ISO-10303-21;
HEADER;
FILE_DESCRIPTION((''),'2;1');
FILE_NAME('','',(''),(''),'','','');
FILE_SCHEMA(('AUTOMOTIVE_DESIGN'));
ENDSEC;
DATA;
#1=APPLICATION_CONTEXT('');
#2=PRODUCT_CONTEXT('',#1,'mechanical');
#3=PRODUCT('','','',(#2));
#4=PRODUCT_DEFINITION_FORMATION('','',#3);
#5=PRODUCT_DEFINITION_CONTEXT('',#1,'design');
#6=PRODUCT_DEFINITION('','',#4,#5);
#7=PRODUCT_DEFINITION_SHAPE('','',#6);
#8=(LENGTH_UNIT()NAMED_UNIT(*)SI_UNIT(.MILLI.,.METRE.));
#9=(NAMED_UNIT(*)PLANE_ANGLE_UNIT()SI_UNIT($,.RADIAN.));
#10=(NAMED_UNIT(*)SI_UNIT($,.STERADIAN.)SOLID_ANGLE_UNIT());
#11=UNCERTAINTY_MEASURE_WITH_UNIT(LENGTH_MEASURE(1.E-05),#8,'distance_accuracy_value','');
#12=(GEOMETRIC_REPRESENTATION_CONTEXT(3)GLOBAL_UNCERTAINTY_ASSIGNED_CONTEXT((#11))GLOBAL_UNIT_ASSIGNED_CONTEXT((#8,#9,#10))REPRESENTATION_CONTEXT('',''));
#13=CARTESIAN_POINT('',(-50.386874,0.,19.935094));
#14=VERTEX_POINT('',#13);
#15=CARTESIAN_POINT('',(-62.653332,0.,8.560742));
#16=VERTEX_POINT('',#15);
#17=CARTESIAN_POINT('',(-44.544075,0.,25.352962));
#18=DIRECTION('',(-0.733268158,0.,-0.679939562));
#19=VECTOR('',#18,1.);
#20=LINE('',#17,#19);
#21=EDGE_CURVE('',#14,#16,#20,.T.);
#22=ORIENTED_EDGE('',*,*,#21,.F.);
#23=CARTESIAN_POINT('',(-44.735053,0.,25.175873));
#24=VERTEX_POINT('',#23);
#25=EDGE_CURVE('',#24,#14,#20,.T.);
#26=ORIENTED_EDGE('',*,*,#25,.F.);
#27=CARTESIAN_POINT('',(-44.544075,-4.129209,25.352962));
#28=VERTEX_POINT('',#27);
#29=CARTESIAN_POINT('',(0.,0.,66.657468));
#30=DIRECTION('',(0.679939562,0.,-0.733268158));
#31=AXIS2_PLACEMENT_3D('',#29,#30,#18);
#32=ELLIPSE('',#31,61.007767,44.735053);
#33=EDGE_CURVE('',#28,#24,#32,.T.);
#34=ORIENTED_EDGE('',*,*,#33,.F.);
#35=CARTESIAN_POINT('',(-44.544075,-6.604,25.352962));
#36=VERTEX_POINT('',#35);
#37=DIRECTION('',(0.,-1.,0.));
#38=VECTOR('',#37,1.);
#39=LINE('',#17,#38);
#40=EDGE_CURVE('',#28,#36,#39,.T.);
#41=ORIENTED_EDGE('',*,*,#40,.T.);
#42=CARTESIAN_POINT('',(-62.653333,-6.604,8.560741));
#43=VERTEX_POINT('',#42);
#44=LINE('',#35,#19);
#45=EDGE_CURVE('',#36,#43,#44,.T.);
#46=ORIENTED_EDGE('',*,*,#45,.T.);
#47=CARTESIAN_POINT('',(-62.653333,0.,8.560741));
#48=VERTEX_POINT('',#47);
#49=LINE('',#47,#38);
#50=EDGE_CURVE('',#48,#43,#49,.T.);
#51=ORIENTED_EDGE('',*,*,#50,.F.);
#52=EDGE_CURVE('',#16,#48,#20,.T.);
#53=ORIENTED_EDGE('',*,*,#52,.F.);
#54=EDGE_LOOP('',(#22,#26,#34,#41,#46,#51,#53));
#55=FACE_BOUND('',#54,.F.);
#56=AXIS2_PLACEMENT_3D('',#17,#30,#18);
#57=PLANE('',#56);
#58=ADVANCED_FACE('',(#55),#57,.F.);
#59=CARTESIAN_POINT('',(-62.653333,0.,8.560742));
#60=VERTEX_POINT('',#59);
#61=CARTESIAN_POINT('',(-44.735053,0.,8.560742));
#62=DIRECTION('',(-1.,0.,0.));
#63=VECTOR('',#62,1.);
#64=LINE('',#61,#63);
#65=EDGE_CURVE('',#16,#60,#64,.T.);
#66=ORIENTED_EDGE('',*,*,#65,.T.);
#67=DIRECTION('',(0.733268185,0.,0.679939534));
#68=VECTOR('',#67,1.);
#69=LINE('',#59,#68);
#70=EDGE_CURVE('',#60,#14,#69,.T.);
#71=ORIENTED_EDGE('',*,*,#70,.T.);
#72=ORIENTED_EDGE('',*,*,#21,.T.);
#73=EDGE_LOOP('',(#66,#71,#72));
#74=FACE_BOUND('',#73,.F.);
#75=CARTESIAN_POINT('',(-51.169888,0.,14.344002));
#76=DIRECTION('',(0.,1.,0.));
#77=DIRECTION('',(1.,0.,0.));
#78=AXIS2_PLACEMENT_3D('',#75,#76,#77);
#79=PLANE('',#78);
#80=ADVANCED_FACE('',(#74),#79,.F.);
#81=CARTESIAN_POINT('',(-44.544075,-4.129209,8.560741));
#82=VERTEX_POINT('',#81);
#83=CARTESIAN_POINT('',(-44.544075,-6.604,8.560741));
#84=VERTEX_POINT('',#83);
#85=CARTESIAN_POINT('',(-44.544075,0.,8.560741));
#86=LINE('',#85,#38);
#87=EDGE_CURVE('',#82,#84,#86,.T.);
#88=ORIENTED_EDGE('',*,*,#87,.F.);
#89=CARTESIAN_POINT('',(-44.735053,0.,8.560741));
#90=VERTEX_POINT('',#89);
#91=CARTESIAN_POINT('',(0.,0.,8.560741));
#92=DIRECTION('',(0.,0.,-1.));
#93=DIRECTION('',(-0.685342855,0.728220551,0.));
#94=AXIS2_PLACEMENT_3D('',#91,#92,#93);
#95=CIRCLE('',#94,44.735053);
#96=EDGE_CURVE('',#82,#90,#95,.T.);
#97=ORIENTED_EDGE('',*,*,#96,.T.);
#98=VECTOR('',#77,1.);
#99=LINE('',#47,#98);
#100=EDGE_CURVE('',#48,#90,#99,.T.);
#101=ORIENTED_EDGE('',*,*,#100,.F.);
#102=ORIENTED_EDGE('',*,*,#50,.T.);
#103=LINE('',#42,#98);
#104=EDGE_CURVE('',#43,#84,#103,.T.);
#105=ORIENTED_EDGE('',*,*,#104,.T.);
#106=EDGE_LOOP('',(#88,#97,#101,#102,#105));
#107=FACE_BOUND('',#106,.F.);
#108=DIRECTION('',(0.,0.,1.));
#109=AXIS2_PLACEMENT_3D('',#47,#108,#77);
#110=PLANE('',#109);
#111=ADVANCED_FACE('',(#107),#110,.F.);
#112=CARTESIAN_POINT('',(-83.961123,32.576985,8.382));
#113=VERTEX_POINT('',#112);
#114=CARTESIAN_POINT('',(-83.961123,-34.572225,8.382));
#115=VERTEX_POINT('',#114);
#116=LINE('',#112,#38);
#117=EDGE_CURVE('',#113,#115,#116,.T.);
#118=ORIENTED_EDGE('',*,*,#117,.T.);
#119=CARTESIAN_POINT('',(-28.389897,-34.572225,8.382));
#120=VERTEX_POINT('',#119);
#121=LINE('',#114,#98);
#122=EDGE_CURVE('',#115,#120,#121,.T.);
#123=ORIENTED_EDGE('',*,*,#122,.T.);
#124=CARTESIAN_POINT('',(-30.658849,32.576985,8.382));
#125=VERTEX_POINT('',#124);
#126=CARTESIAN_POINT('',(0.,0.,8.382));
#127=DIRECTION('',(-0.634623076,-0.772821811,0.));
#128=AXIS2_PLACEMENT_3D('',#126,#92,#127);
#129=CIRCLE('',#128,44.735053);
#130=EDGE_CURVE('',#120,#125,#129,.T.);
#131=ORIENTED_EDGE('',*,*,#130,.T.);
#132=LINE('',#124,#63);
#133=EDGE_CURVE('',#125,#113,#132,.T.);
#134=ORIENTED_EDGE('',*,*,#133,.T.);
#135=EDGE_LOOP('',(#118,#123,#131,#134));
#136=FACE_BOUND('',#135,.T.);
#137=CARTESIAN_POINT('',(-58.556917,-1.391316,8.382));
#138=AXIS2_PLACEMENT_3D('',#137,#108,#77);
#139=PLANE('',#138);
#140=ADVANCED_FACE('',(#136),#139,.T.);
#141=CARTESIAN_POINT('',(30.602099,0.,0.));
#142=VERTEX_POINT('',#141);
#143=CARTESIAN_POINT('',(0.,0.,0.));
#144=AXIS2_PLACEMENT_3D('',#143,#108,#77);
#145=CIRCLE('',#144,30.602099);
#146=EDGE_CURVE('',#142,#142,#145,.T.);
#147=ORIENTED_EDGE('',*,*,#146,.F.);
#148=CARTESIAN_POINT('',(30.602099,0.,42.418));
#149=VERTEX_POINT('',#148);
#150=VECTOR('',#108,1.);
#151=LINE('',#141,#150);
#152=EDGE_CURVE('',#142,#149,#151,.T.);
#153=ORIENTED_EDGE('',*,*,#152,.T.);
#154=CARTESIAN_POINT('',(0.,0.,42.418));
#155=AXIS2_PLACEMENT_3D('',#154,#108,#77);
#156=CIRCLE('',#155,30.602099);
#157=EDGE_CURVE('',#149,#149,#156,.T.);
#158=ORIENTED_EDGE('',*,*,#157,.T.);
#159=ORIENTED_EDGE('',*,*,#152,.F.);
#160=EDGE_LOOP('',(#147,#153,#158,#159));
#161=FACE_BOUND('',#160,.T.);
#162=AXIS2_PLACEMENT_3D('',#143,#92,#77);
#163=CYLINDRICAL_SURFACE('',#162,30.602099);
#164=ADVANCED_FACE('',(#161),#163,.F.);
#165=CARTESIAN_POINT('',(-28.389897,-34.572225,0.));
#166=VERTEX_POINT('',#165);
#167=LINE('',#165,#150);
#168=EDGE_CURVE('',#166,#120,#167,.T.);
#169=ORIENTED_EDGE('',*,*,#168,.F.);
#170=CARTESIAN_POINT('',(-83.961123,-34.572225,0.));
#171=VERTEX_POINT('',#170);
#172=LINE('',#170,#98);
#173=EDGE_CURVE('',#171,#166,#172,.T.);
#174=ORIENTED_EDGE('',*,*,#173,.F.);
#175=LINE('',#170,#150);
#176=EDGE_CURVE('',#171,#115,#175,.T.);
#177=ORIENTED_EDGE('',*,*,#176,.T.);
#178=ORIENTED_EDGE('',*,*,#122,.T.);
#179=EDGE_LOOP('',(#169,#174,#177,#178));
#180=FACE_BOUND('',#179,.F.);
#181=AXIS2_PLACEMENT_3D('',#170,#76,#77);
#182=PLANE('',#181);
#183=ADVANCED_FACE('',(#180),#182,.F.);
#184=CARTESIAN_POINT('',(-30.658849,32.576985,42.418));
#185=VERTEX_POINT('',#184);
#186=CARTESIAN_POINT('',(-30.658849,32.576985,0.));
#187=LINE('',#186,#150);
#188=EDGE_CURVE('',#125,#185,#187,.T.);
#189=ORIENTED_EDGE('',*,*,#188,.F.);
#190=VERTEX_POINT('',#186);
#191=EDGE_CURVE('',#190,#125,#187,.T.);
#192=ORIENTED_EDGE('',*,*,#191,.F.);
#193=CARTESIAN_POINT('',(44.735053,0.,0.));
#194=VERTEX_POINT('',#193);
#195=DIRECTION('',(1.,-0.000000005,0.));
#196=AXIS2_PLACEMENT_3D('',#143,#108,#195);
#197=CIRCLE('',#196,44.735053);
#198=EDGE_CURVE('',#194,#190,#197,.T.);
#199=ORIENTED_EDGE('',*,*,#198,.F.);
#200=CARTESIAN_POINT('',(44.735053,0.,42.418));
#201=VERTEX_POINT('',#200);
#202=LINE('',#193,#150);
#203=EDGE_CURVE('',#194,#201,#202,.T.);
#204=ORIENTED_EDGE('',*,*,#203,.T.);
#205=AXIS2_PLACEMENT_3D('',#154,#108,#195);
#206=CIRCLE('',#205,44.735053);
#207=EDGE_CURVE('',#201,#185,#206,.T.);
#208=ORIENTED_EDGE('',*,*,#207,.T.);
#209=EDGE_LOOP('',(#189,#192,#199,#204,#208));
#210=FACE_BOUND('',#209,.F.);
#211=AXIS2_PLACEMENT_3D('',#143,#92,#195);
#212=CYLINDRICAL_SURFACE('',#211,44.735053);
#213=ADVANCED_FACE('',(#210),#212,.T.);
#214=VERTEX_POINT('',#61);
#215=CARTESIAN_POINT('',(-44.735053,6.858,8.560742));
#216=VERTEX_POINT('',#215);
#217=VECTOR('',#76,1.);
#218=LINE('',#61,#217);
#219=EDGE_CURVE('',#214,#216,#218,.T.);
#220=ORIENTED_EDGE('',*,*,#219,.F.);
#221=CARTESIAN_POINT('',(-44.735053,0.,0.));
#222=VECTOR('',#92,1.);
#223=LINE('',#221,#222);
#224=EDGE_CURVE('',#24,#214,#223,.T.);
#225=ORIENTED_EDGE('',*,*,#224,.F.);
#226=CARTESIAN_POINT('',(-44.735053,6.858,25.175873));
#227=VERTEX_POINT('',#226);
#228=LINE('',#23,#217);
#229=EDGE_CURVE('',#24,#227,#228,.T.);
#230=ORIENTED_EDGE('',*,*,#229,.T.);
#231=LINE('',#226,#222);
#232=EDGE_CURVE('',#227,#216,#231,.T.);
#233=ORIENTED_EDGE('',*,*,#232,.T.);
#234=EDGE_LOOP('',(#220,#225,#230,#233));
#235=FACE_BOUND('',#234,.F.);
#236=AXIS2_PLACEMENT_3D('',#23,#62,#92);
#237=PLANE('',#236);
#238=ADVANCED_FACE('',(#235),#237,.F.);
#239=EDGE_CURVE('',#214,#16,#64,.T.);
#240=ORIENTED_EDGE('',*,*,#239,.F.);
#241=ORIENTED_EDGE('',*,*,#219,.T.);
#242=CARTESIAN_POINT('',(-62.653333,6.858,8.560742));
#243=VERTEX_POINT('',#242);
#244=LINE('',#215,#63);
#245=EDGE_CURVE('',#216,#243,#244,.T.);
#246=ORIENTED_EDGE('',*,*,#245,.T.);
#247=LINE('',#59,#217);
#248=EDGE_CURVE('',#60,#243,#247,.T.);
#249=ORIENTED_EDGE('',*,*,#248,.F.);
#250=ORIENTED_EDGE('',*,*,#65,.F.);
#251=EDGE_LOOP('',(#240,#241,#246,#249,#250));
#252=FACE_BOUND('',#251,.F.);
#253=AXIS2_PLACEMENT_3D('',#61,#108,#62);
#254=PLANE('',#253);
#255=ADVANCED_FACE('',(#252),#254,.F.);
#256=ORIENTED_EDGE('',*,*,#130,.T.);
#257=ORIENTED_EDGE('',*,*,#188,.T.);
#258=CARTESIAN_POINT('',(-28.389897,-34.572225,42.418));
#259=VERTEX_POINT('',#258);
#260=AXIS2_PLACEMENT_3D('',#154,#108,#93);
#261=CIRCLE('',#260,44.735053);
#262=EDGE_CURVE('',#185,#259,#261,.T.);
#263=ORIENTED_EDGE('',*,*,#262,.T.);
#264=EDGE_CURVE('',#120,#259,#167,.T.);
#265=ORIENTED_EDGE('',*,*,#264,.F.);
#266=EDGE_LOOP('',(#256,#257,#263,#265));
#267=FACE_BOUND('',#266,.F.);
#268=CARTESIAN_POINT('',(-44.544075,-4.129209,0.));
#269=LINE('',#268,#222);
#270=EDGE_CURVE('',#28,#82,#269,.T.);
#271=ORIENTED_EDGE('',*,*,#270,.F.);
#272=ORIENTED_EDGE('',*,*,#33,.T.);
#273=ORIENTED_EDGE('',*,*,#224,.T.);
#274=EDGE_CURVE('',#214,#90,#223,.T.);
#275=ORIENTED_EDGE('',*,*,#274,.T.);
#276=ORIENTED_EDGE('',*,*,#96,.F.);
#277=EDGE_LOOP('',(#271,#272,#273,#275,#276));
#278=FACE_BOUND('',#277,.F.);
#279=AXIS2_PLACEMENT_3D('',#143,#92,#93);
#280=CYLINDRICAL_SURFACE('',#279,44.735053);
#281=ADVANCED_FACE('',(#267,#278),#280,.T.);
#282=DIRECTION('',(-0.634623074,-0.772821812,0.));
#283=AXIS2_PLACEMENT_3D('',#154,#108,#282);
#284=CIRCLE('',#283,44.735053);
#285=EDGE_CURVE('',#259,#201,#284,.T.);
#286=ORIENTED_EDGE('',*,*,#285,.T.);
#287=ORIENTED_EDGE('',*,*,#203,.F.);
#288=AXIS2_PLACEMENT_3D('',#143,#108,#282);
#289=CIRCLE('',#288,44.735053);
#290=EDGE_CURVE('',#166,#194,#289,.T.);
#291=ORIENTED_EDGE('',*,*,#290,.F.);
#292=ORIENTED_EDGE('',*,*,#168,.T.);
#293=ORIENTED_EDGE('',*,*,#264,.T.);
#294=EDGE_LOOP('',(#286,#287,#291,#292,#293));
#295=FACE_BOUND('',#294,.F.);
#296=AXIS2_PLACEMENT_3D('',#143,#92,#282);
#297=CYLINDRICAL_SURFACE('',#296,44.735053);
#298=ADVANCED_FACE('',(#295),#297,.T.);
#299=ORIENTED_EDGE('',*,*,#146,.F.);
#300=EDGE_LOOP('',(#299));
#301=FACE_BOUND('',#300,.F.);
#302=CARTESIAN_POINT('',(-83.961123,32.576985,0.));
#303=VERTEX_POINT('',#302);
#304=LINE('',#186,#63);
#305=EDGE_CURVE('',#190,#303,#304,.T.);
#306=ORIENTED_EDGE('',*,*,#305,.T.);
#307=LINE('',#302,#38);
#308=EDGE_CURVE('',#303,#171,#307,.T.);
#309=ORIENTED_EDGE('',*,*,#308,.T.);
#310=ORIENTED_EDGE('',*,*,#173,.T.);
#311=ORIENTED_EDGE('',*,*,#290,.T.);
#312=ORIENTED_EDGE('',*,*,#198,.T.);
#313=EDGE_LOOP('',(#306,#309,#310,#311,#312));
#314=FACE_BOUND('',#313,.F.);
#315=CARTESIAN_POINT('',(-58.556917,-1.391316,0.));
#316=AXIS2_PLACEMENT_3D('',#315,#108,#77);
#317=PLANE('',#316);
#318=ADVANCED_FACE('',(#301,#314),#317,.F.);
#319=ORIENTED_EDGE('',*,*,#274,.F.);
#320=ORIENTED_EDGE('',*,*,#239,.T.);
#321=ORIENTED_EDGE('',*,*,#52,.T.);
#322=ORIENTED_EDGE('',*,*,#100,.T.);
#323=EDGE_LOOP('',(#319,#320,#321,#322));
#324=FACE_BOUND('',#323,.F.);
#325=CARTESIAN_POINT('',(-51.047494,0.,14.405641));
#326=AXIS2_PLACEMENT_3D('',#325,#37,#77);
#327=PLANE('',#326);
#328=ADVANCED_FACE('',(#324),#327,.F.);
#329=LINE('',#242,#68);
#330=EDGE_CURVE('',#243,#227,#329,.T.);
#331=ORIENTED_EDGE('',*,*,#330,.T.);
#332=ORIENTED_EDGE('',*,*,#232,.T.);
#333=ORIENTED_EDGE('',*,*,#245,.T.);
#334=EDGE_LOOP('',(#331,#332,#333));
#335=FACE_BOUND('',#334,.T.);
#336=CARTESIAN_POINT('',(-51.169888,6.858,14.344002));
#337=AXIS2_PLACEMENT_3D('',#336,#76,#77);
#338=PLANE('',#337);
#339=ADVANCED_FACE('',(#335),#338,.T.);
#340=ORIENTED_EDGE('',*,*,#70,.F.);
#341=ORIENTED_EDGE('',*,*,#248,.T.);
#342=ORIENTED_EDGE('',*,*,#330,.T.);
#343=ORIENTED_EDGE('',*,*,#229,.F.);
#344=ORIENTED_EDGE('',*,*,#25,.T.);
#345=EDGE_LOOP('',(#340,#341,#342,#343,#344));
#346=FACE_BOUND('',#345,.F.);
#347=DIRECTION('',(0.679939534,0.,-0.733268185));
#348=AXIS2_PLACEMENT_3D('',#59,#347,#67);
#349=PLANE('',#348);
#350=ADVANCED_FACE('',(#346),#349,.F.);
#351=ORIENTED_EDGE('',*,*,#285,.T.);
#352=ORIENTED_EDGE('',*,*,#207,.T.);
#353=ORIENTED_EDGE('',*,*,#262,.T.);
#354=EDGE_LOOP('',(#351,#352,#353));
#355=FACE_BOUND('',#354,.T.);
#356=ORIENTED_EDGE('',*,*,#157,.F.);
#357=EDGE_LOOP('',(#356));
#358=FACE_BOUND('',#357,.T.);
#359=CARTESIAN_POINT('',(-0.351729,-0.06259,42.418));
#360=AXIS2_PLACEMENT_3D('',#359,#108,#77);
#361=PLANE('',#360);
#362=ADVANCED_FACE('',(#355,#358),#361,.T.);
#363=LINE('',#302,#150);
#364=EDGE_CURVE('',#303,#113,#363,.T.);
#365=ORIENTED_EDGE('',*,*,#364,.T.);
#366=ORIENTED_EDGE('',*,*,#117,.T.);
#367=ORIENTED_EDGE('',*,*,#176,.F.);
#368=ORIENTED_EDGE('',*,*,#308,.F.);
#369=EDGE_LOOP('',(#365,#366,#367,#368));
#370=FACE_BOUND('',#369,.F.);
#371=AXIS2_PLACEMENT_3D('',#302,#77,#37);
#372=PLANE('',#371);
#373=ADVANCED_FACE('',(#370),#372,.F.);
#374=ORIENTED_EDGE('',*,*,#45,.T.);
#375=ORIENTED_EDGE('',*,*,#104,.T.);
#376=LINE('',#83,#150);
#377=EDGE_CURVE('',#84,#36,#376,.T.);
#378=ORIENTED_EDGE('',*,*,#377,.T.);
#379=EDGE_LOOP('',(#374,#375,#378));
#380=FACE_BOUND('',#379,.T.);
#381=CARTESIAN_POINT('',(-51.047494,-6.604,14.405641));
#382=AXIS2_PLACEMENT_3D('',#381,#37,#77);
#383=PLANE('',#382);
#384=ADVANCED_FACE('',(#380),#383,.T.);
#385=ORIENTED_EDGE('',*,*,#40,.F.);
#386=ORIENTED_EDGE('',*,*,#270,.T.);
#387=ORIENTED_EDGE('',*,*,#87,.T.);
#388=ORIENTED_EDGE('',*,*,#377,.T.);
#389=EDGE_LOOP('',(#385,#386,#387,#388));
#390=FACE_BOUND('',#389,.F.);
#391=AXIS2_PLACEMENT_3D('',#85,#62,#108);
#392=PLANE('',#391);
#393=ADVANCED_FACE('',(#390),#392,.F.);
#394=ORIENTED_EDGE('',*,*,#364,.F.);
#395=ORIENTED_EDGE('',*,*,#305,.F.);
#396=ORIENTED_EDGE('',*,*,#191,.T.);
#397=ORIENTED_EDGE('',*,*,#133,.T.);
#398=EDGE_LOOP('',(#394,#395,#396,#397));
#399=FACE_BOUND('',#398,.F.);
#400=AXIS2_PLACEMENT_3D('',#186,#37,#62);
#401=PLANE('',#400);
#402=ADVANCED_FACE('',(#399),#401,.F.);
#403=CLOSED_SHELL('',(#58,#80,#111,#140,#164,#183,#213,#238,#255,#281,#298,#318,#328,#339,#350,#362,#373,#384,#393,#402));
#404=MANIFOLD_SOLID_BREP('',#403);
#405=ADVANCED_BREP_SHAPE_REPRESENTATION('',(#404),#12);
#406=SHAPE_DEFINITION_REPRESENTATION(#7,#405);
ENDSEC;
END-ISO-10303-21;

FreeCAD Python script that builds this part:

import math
import FreeCAD as App
import Part
import Sketcher
Q = App.Units.Quantity

doc = App.newDocument("Part")
body = doc.addObject("PartDesign::Body", "Body")

# Sketch on XY plane
sketch1 = doc.addObject("Sketcher::SketchObject", "Sketch")
body.addObject(sketch1)
sketch1.AttachmentSupport = (doc.XY_Plane, [""])
sketch1.MapMode = "FlatFace"
sketch1.addGeometry([
    Part.ArcOfCircle(Part.Circle(App.Vector(0, 0, 0), App.Vector(0, 0, 1), 44.735053), math.radians(-129.392034), math.radians(0)),
    Part.ArcOfCircle(Part.Circle(App.Vector(0, 0, 0), App.Vector(0, 0, 1), 44.735053), math.radians(0), math.radians(133.262577)),
    Part.ArcOfCircle(Part.Circle(App.Vector(0, 0, 0), App.Vector(0, 0, 1), 44.735053), math.radians(133.262577), math.radians(230.607966)),
    Part.Circle(App.Vector(0, 0, 0), App.Vector(0, 0, 1), 30.602099),
], False)
sketch1.addConstraint([
    Sketcher.Constraint("Tangent", 0, 2, 1, 1),
    Sketcher.Constraint("Tangent", 1, 2, 2, 1),
    Sketcher.Constraint("Tangent", 2, 2, 0, 1),
    Sketcher.Constraint("Coincident", 0, 3, -1, 1),
    Sketcher.Constraint("Coincident", 3, 3, -1, 1),
    Sketcher.Constraint("PointOnObject", 0, 2, -1),
    Sketcher.Constraint("Diameter", 3, 61.204198),
    Sketcher.Constraint("Radius", 0, 44.735053),
    Sketcher.Constraint("DistanceX", 1, 2, -1, 1, 30.658849),
    Sketcher.Constraint("DistanceY", 2, 2, 1, 2, 67.14921),
])
pad1 = doc.addObject("PartDesign::Pad", "Pad")
body.addObject(pad1)
pad1.Profile = sketch1
pad1.Length = Q("1.67 in")

# Sketch on XY plane
sketch2 = doc.addObject("Sketcher::SketchObject", "Sketch001")
body.addObject(sketch2)
sketch2.AttachmentSupport = (doc.XY_Plane, [""])
sketch2.MapMode = "FlatFace"
sketch2.addGeometry([
    Part.ArcOfCircle(Part.Circle(App.Vector(0, 0, 0), App.Vector(0, 0, 1), 44.735053), math.radians(133.262577), math.radians(230.607966)),
    Part.LineSegment(App.Vector(-30.658849, 32.576985, 0), App.Vector(-83.961123, 32.576985, 0)),
    Part.LineSegment(App.Vector(-83.961123, 32.576985, 0), App.Vector(-83.961123, -34.572225, 0)),
    Part.LineSegment(App.Vector(-83.961123, -34.572225, 0), App.Vector(-28.389897, -34.572225, 0)),
], False)
sketch2.addConstraint([
    Sketcher.Constraint("Coincident", 0, 1, 1, 1),
    Sketcher.Constraint("Coincident", 1, 2, 2, 1),
    Sketcher.Constraint("Coincident", 2, 2, 3, 1),
    Sketcher.Constraint("Coincident", 3, 2, 0, 2),
    Sketcher.Constraint("Horizontal", 1),
    Sketcher.Constraint("Vertical", 2),
    Sketcher.Constraint("Horizontal", 3),
    Sketcher.Constraint("Coincident", 0, 3, -1, 1),
    Sketcher.Constraint("Radius", 0, 44.735053),
    Sketcher.Constraint("DistanceY", 2, 2, 2, 1, 67.14921),
    Sketcher.Constraint("DistanceX", 1, 2, 1, 1, 53.302274),
    Sketcher.Constraint("DistanceX", 3, 1, 3, 2, 55.571226),
])
pad2 = doc.addObject("PartDesign::Pad", "Pad001")
body.addObject(pad2)
pad2.Profile = sketch2
pad2.Length = Q("0.33 in")

# Sketch on XZ plane
sketch3 = doc.addObject("Sketcher::SketchObject", "Sketch002")
body.addObject(sketch3)
sketch3.AttachmentSupport = (doc.XZ_Plane, [""])
sketch3.MapMode = "FlatFace"
sketch3.addGeometry([
    Part.LineSegment(App.Vector(-44.544075, 8.560741, 0), App.Vector(-44.544075, 25.352962, 0)),
    Part.LineSegment(App.Vector(-44.544075, 25.352962, 0), App.Vector(-62.653333, 8.560741, 0)),
    Part.LineSegment(App.Vector(-62.653333, 8.560741, 0), App.Vector(-44.544075, 8.560741, 0)),
], False)
sketch3.addConstraint([
    Sketcher.Constraint("Coincident", 0, 2, 1, 1),
    Sketcher.Constraint("Coincident", 1, 2, 2, 1),
    Sketcher.Constraint("Coincident", 2, 2, 0, 1),
    Sketcher.Constraint("Vertical", 0),
    Sketcher.Constraint("Horizontal", 2),
    Sketcher.Constraint("DistanceX", 2, 1, 2, 2, 18.109258),
    Sketcher.Constraint("DistanceY", 0, 1, 0, 2, 16.792221),
    Sketcher.Constraint("DistanceY", -1, 1, 1, 2, 8.560741),
    Sketcher.Constraint("DistanceX", 0, 2, -1, 1, 44.544075),
])
pad3 = doc.addObject("PartDesign::Pad", "Pad002")
body.addObject(pad3)
pad3.Profile = sketch3
pad3.Length = Q("0.26 in")

# Sketch on XZ plane
sketch4 = doc.addObject("Sketcher::SketchObject", "Sketch003")
body.addObject(sketch4)
sketch4.AttachmentSupport = (doc.XZ_Plane, [""])
sketch4.MapMode = "FlatFace"
sketch4.addGeometry([
    Part.LineSegment(App.Vector(-62.653333, 8.560742, 0), App.Vector(-44.735053, 25.175873, 0)),
    Part.LineSegment(App.Vector(-44.735053, 25.175873, 0), App.Vector(-44.735053, 8.560742, 0)),
    Part.LineSegment(App.Vector(-44.735053, 8.560742, 0), App.Vector(-62.653333, 8.560742, 0)),
], False)
sketch4.addConstraint([
    Sketcher.Constraint("Coincident", 0, 2, 1, 1),
    Sketcher.Constraint("Coincident", 1, 2, 2, 1),
    Sketcher.Constraint("Coincident", 2, 2, 0, 1),
    Sketcher.Constraint("Vertical", 1),
    Sketcher.Constraint("Horizontal", 2),
    Sketcher.Constraint("DistanceX", 2, 2, 2, 1, 17.91828),
    Sketcher.Constraint("DistanceY", 1, 2, 1, 1, 16.615131),
    Sketcher.Constraint("DistanceX", 0, 2, -1, 1, 44.735053),
    Sketcher.Constraint("DistanceY", -1, 1, 0, 2, 25.175873),
])
pad4 = doc.addObject("PartDesign::Pad", "Pad003")
body.addObject(pad4)
pad4.Profile = sketch4
pad4.Length = Q("0.27 in")
pad4.Reversed = True

doc.recompute()
